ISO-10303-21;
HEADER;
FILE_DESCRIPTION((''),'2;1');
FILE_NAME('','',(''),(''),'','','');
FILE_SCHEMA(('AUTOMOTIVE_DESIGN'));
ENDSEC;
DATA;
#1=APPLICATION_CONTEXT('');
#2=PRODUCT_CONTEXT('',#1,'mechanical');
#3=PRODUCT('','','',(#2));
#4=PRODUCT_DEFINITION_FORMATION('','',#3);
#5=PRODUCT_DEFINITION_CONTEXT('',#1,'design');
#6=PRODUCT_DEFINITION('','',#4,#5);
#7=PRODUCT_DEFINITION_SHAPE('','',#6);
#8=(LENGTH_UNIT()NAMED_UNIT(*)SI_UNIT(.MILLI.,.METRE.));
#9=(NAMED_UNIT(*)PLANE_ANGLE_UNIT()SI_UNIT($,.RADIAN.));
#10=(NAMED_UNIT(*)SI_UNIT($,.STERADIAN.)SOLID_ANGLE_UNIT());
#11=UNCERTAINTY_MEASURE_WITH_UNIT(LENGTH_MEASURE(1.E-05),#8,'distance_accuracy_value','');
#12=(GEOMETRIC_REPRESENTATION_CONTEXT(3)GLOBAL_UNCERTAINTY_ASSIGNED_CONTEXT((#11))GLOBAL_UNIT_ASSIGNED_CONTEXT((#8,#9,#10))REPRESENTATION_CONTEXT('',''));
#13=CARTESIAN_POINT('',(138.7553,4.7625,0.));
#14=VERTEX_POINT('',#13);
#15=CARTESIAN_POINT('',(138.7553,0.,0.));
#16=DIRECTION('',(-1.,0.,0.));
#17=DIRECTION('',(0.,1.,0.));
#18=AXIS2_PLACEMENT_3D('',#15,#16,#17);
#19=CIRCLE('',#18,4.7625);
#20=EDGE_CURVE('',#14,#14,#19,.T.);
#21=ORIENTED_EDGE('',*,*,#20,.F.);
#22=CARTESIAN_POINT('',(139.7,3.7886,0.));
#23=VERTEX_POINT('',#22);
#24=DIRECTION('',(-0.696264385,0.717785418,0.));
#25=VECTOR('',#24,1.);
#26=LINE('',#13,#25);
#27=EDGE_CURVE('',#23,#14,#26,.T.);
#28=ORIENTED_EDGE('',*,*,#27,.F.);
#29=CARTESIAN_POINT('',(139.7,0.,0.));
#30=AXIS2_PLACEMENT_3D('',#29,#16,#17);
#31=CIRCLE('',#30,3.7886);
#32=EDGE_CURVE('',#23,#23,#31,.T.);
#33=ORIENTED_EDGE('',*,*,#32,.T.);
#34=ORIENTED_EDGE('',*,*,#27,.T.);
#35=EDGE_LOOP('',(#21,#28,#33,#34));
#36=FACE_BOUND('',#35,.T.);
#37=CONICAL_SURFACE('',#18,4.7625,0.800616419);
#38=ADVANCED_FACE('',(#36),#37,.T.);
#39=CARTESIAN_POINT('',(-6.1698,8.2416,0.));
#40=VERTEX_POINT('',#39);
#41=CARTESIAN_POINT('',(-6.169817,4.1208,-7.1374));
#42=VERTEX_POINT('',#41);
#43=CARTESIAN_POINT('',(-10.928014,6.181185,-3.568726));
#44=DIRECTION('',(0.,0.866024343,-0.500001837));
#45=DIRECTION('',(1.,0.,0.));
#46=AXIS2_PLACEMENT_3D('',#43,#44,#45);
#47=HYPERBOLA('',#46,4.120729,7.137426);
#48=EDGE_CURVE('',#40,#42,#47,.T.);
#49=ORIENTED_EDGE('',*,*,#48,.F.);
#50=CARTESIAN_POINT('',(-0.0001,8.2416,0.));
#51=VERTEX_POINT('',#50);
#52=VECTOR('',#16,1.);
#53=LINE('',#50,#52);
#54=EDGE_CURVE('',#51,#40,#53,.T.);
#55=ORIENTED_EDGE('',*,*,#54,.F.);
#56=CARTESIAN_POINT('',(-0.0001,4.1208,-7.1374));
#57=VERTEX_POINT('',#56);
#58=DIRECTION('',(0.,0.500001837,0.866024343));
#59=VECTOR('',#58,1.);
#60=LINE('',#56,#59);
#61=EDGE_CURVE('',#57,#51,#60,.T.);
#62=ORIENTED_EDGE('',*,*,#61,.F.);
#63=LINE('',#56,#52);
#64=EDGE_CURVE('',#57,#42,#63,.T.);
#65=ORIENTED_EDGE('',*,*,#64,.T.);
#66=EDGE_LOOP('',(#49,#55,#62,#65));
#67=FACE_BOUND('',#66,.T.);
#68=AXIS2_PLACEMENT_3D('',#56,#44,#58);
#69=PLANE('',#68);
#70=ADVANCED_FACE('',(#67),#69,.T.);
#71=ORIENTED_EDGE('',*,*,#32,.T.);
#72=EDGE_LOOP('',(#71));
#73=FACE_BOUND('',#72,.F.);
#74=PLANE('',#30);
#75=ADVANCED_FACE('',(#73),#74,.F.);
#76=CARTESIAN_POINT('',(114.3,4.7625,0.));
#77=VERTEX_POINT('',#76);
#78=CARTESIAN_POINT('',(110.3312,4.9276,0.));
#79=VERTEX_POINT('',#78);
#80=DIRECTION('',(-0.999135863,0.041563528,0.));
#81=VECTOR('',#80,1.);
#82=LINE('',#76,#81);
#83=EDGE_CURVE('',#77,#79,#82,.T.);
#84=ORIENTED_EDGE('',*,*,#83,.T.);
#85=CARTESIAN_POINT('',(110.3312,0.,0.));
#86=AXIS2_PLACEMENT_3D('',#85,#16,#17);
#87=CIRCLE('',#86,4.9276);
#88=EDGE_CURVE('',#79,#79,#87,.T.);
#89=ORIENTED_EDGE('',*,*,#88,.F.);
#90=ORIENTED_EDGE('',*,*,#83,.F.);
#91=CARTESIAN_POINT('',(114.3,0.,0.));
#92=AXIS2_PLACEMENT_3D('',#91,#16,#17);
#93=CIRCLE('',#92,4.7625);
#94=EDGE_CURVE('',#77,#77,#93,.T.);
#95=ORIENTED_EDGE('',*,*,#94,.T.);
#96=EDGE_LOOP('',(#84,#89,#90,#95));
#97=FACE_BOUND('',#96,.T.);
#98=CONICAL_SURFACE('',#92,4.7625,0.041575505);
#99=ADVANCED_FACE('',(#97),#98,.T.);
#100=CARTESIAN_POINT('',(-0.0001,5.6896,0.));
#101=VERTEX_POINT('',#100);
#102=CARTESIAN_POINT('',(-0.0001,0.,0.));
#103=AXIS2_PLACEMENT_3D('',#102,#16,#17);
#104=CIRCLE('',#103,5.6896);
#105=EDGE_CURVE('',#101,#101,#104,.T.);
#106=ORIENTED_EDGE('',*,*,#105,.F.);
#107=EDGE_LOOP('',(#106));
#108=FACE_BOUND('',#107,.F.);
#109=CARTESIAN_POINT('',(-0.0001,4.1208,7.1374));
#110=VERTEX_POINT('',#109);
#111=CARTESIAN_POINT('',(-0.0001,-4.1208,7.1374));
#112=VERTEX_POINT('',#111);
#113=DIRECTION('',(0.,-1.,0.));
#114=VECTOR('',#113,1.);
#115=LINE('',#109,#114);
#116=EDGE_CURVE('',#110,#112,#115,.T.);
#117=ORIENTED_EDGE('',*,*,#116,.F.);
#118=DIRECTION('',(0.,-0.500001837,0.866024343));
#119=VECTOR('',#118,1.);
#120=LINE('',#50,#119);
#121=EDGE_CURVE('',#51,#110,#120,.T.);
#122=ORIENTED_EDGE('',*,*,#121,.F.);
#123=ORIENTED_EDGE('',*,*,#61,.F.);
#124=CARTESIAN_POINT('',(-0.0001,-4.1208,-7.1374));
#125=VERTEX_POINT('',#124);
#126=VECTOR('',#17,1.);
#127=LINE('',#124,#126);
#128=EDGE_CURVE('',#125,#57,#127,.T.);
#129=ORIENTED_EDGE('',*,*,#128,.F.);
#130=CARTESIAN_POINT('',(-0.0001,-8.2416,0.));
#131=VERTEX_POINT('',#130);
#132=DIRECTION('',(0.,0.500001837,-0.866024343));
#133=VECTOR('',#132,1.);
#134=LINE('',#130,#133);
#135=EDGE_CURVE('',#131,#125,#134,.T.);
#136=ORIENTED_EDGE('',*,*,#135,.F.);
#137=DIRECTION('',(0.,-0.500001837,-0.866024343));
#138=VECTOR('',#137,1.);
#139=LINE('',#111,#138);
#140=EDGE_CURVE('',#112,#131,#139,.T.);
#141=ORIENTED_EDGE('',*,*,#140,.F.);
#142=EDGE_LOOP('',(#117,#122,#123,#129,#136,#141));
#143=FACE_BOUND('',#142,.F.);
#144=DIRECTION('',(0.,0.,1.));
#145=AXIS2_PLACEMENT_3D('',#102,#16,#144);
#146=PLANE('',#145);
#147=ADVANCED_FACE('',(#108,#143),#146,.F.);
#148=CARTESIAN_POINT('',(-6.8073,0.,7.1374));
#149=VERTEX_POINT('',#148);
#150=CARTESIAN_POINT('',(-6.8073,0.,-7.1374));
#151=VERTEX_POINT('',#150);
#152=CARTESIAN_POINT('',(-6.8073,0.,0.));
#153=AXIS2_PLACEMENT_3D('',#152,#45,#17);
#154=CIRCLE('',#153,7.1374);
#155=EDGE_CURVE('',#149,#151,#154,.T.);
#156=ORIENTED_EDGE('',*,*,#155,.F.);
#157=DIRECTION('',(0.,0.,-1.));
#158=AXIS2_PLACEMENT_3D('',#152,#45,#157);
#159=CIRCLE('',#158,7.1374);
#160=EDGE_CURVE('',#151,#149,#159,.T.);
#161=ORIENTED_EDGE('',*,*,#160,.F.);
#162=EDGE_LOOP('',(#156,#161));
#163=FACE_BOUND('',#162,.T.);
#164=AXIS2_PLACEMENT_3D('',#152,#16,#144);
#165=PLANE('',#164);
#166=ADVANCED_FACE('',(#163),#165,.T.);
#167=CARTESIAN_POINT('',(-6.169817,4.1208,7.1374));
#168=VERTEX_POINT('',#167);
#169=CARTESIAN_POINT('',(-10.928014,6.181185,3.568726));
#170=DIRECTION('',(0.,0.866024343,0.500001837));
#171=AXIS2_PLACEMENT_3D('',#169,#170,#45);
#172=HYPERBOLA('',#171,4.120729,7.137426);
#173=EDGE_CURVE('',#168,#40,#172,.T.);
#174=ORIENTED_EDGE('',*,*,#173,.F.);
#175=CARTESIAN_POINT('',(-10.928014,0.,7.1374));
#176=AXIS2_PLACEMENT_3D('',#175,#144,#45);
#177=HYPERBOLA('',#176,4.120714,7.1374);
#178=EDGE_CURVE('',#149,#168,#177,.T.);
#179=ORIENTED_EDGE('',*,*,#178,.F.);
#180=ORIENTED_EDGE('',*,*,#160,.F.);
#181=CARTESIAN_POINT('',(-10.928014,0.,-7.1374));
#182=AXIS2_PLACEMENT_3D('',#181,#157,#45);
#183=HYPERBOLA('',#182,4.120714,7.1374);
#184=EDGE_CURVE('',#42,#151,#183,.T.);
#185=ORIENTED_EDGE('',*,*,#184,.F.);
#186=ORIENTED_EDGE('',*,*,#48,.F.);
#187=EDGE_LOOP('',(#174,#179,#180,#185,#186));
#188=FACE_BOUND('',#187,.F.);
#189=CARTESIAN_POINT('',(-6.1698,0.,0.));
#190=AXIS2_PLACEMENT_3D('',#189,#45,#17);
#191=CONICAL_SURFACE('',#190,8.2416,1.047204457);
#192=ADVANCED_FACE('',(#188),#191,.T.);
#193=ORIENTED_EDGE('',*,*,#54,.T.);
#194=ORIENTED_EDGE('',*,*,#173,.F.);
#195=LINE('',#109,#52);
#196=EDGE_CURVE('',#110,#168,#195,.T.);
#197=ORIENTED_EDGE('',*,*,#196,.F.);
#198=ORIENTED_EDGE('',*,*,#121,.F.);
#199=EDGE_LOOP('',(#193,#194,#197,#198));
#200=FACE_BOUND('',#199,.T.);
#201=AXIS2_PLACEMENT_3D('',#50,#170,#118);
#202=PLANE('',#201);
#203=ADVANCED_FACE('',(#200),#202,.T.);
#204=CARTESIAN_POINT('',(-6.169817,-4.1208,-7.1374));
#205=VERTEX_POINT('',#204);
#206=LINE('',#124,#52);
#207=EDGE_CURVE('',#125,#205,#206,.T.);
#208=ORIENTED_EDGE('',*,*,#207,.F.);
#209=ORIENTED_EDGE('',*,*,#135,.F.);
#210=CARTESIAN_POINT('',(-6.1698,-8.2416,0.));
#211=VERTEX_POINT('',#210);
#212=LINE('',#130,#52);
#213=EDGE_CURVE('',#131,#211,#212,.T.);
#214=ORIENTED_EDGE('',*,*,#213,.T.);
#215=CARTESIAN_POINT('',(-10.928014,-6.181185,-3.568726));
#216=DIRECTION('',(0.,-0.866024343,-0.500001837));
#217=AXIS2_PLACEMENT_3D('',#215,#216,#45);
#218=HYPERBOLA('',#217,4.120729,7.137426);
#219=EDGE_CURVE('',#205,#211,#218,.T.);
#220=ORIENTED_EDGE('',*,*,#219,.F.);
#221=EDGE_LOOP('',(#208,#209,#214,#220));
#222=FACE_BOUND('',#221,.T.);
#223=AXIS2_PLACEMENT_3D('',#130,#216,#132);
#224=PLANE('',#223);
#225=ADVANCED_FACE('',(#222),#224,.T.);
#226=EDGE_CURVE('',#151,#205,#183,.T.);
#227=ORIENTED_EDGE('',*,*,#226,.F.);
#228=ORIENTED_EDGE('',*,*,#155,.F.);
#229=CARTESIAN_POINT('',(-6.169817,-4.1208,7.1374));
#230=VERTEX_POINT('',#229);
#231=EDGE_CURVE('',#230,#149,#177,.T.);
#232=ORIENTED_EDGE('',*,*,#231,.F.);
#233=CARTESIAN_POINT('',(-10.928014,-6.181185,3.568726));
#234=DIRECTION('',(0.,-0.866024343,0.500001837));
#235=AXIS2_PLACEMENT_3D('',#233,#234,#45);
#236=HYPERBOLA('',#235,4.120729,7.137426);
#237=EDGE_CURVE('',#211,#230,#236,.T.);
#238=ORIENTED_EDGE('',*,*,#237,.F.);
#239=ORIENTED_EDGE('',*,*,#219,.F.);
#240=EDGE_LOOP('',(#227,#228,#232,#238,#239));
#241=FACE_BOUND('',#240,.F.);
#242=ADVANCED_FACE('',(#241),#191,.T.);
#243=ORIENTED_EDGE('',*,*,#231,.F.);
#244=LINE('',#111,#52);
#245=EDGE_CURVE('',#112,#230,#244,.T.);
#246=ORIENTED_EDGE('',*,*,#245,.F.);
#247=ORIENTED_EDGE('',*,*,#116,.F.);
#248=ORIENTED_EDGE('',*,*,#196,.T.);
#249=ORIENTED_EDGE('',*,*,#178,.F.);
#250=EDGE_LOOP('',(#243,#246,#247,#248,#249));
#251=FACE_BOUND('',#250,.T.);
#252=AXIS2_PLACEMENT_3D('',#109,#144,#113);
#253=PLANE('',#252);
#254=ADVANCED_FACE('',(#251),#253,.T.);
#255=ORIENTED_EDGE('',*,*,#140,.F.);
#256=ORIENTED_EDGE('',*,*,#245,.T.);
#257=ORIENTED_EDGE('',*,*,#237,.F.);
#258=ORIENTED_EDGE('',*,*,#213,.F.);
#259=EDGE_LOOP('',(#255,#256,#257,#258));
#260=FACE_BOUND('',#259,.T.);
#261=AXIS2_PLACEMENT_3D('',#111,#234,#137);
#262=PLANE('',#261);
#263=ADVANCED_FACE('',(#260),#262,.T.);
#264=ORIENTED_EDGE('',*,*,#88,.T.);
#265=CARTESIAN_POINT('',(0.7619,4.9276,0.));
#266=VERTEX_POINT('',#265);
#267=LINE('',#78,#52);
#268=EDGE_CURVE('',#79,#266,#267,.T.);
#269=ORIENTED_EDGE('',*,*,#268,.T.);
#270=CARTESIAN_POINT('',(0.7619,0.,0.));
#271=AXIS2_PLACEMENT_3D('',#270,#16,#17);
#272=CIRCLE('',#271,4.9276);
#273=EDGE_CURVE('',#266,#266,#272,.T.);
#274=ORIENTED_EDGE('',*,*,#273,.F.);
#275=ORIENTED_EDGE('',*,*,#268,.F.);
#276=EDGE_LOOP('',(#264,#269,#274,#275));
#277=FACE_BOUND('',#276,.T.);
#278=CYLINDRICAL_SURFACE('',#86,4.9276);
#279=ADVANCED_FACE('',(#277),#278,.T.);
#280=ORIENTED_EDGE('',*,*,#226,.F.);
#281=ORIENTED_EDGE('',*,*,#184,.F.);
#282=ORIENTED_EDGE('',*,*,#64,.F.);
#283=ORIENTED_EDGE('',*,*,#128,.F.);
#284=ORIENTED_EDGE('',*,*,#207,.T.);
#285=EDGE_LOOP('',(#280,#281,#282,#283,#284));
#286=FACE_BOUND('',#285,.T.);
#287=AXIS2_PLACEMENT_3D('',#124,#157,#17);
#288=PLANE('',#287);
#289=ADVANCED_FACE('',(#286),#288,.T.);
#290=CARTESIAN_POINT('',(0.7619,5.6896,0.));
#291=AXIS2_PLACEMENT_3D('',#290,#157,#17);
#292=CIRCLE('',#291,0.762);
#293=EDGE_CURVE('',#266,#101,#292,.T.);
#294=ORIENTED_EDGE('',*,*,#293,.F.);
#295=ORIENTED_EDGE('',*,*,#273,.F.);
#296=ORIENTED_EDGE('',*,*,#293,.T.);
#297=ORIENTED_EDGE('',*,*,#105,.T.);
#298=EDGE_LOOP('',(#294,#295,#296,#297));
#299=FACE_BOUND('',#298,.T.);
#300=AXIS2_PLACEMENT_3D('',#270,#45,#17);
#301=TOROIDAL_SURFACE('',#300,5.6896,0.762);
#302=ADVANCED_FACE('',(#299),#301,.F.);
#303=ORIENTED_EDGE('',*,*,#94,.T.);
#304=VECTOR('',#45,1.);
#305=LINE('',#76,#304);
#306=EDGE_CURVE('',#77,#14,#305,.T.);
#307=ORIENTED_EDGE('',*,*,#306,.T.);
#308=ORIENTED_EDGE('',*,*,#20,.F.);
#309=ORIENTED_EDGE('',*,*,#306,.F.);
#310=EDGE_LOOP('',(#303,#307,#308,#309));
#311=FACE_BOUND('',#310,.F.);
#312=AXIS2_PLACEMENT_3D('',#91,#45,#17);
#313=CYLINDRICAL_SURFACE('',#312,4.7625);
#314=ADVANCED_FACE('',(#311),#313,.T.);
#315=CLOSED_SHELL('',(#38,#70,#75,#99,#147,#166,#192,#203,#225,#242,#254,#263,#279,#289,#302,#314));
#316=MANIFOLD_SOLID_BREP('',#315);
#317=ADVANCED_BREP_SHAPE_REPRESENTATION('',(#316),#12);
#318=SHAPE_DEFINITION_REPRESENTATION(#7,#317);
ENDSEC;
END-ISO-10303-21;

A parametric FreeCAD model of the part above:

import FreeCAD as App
import Part
import Sketcher

V = App.Vector
Q = App.Units.Quantity


def edges_at(feature, points):
    """Names of the edges that pass closest to the given points."""
    edges = feature.Shape.Edges
    near = lambda p: min(range(len(edges)), key=lambda i: edges[i].distToShape(Part.Vertex(*p))[0])
    return sorted({f"Edge{near(p) + 1}" for p in points})

doc = App.newDocument("Part")
body = doc.addObject("PartDesign::Body", "Body")

sketch1 = body.newObject("Sketcher::SketchObject", "Sketch")
sketch1.AttachmentSupport = (doc.getObject("XY_Plane"), [""])
sketch1.MapMode = "FlatFace"
sketch1.addGeometry(Part.LineSegment(V(139.7, 4.8, 0), V(114.3, 4.8, 0)), False)
sketch1.addGeometry(Part.LineSegment(V(114.3, 4.8, 0), V(110.3, 4.9, 0)), False)
sketch1.addGeometry(Part.LineSegment(V(110.3, 4.9, 0), V(0, 4.9, 0)), False)
sketch1.addGeometry(Part.LineSegment(V(0, 4.9, 0), V(0, 0, 0)), False)
sketch1.addGeometry(Part.LineSegment(V(0, 0, 0), V(139.7, 0, 0)), False)
sketch1.addGeometry(Part.LineSegment(V(139.7, 0, 0), V(139.7, 4.8, 0)), False)
sketch1.addConstraint(Sketcher.Constraint("Coincident", 0, 2, 1, 1))
sketch1.addConstraint(Sketcher.Constraint("Coincident", 1, 2, 2, 1))
sketch1.addConstraint(Sketcher.Constraint("Coincident", 2, 2, 3, 1))
sketch1.addConstraint(Sketcher.Constraint("Coincident", 3, 2, 4, 1))
sketch1.addConstraint(Sketcher.Constraint("Coincident", 4, 2, 5, 1))
sketch1.addConstraint(Sketcher.Constraint("Coincident", 5, 2, 0, 1))
sketch1.addConstraint(Sketcher.Constraint("Horizontal", 0))
sketch1.addConstraint(Sketcher.Constraint("Horizontal", 2))
sketch1.addConstraint(Sketcher.Constraint("Vertical", 3))
sketch1.addConstraint(Sketcher.Constraint("Horizontal", 4))
sketch1.addConstraint(Sketcher.Constraint("Vertical", 5))
sketch1.addConstraint(Sketcher.Constraint("Coincident", 3, 2, -1, 1))
sketch1.addConstraint(Sketcher.Constraint("DistanceX", 0, 2, 0, 1, Q("1 in")))
sketch1.addConstraint(Sketcher.Constraint("DistanceX", 4, 1, 4, 2, Q("5.5 in")))
sketch1.addConstraint(Sketcher.Constraint("DistanceX", 1, 2, 0, 2, Q("0.156252 in")))
sketch1.addConstraint(Sketcher.Constraint("DistanceY", 3, 2, 3, 1, Q("0.194 in")))
sketch1.addConstraint(Sketcher.Constraint("DistanceY", 5, 1, 5, 2, Q("0.1875 in")))
revolution = body.newObject("PartDesign::Revolution", "Revolution")
revolution.Profile = sketch1
revolution.ReferenceAxis = (sketch1, ["H_Axis"])
revolution.Angle = 360

sketch2 = body.newObject("Sketcher::SketchObject", "Sketch001")
sketch2.AttachmentSupport = (doc.getObject("YZ_Plane"), [""])
sketch2.MapMode = "FlatFace"
sketch2.AttachmentOffset = App.Placement(V(0, 0, -0.0000039 * 25.4), App.Rotation())
sketch2.addGeometry(Part.LineSegment(V(4, 7, 0), V(8, 0, 0)), False)
sketch2.addGeometry(Part.LineSegment(V(8, 0, 0), V(4, -7, 0)), False)
sketch2.addGeometry(Part.LineSegment(V(4, -7, 0), V(-4, -7, 0)), False)
sketch2.addGeometry(Part.LineSegment(V(-4, -7, 0), V(-8, 0, 0)), False)
sketch2.addGeometry(Part.LineSegment(V(-8, 0, 0), V(-4, 7, 0)), False)
sketch2.addGeometry(Part.LineSegment(V(-4, 7, 0), V(4, 7, 0)), False)
sketch2.addConstraint(Sketcher.Constraint("Coincident", 0, 2, 1, 1))
sketch2.addConstraint(Sketcher.Constraint("Coincident", 1, 2, 2, 1))
sketch2.addConstraint(Sketcher.Constraint("Coincident", 2, 2, 3, 1))
sketch2.addConstraint(Sketcher.Constraint("Coincident", 3, 2, 4, 1))
sketch2.addConstraint(Sketcher.Constraint("Coincident", 4, 2, 5, 1))
sketch2.addConstraint(Sketcher.Constraint("Coincident", 5, 2, 0, 1))
sketch2.addConstraint(Sketcher.Constraint("Horizontal", 2))
sketch2.addConstraint(Sketcher.Constraint("Horizontal", 5))
sketch2.addConstraint(Sketcher.Constraint("Symmetric", 0, 2, 3, 2, -1, 1))
sketch2.addConstraint(Sketcher.Constraint("Symmetric", 1, 2, 4, 2, -1, 1))
sketch2.addConstraint(Sketcher.Constraint("PointOnObject", 0, 2, -1))
sketch2.addConstraint(Sketcher.Constraint("Parallel", 0, 3))
sketch2.addConstraint(Sketcher.Constraint("Vertical", 2, 2, 4, 2))
sketch2.addConstraint(Sketcher.Constraint("Angle", 0, Q("-59.9999 deg")))
sketch2.addConstraint(Sketcher.Constraint("DistanceY", 2, 2, 4, 2, Q("0.562 in")))
sketch2.addConstraint(Sketcher.Constraint("DistanceX", 2, 2, 2, 1, Q("8.2416 mm")))
pad1 = body.newObject("PartDesign::Pad", "Pad")
pad1.Profile = sketch2
pad1.Length = Q("0.268 in")
pad1.Reversed = True

sketch3 = body.newObject("Sketcher::SketchObject", "Sketch002")
sketch3.AttachmentSupport = (doc.getObject("XY_Plane"), [""])
sketch3.MapMode = "FlatFace"
sketch3.addGeometry(Part.LineSegment(V(-6.8, 8.2, 0), V(-6.8, 7.1, 0)), False)
sketch3.addGeometry(Part.LineSegment(V(-6.8, 7.1, 0), V(-6.2, 8.2, 0)), False)
sketch3.addGeometry(Part.LineSegment(V(-6.2, 8.2, 0), V(-6.8, 8.2, 0)), False)
sketch3.addConstraint(Sketcher.Constraint("Coincident", 0, 2, 1, 1))
sketch3.addConstraint(Sketcher.Constraint("Coincident", 1, 2, 2, 1))
sketch3.addConstraint(Sketcher.Constraint("Coincident", 2, 2, 0, 1))
sketch3.addConstraint(Sketcher.Constraint("Vertical", 0))
sketch3.addConstraint(Sketcher.Constraint("Horizontal", 2))
sketch3.addConstraint(Sketcher.Constraint("Angle", 1, Q("60.0004 deg")))
sketch3.addConstraint(Sketcher.Constraint("DistanceX", 2, 2, 2, 1, Q("0.0251 in")))
sketch3.addConstraint(Sketcher.Constraint("DistanceX", 0, 2, -1, 1, Q("0.268 in")))
sketch3.addConstraint(Sketcher.Constraint("DistanceY", -1, 1, 0, 2, Q("0.281 in")))
groove = body.newObject("PartDesign::Groove", "Groove")
groove.Profile = sketch3
groove.ReferenceAxis = (sketch3, ["H_Axis"])
groove.Angle = 360
doc.recompute()

chamfer = body.newObject("PartDesign::Chamfer", "Chamfer")
chamfer.Base = (groove, edges_at(groove, [(139.7, -4.763, 0)]))
chamfer.ChamferType = "Two distances"
chamfer.Size = 0.9739
chamfer.Size2 = Q("0.0371929 in")
doc.recompute()

fillet = body.newObject("PartDesign::Fillet", "Fillet")
fillet.Base = (chamfer, edges_at(chamfer, [(0, -4.928, 0)]))
fillet.Radius = Q("0.03 in")

doc.recompute()
